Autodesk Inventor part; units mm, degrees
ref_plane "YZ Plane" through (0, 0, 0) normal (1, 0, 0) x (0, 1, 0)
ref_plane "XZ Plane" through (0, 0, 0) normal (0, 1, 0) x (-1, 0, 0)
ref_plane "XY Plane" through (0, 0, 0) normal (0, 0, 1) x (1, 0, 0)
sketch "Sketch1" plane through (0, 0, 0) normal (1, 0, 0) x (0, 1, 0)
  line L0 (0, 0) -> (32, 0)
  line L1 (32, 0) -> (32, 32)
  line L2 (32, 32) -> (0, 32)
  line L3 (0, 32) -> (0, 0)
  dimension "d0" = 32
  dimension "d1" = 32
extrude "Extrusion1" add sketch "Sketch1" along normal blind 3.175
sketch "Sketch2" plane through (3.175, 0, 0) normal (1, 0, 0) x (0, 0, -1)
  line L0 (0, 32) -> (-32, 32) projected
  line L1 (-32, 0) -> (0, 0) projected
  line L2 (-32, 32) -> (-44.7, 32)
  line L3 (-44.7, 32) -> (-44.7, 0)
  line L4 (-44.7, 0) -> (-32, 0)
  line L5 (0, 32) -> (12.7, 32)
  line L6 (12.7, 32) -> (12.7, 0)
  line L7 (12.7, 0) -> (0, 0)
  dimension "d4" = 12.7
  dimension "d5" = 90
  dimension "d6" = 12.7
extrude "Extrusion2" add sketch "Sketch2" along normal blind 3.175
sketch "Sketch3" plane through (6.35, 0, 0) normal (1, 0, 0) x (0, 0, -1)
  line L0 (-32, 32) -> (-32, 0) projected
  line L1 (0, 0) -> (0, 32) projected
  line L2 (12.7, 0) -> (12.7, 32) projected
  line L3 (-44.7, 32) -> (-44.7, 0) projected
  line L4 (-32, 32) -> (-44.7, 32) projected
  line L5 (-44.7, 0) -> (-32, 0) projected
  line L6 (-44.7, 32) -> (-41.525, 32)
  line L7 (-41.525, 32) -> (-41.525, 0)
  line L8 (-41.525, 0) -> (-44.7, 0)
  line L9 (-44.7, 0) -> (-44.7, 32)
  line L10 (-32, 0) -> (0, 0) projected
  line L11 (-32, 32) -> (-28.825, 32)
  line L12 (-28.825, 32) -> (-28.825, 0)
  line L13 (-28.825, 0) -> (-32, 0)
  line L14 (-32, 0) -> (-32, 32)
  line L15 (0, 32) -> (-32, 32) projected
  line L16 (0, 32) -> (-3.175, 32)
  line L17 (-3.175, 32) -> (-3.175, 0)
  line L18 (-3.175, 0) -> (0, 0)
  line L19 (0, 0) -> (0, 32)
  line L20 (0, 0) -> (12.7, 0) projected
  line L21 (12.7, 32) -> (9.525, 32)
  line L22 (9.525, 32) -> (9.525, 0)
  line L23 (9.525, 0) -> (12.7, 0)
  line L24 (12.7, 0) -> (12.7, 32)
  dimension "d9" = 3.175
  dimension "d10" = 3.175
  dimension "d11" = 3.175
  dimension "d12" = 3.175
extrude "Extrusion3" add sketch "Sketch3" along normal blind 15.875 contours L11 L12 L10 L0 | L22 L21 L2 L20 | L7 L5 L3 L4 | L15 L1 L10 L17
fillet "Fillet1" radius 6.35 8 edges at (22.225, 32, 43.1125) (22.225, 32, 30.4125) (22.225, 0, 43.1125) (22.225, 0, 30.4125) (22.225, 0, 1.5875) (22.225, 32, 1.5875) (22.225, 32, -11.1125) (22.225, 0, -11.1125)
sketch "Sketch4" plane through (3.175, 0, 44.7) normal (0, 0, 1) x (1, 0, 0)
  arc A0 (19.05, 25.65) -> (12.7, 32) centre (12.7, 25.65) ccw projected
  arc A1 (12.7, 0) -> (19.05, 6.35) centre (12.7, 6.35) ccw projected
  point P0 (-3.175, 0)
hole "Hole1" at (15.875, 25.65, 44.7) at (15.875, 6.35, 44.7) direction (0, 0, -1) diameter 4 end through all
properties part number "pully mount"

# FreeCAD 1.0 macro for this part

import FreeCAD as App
import Part
import Sketcher


def edges_at(feature, points):
    """Names of the edges that pass closest to the given points."""
    edges = feature.Shape.Edges
    near = lambda p: min(range(len(edges)), key=lambda i: edges[i].distToShape(Part.Vertex(*p))[0])
    return sorted({f"Edge{near(p) + 1}" for p in points})

doc = App.newDocument("Part")
body = doc.addObject("PartDesign::Body", "Body")

sketch1 = body.newObject("Sketcher::SketchObject", "Sketch")
sketch1.AttachmentSupport = (doc.getObject("YZ_Plane"), [""])
sketch1.MapMode = "FlatFace"
sketch1.addGeometry([
    Part.LineSegment(App.Vector(0, 32, 0), App.Vector(0, 0, 0)),
    Part.LineSegment(App.Vector(0, 0, 0), App.Vector(32, 0, 0)),
    Part.LineSegment(App.Vector(32, 0, 0), App.Vector(32, 32, 0)),
    Part.LineSegment(App.Vector(32, 32, 0), App.Vector(0, 32, 0)),
], False)
sketch1.addConstraint([
    Sketcher.Constraint("Coincident", 0, 2, 1, 1),
    Sketcher.Constraint("Coincident", 1, 2, 2, 1),
    Sketcher.Constraint("Coincident", 2, 2, 3, 1),
    Sketcher.Constraint("Coincident", 3, 2, 0, 1),
    Sketcher.Constraint("Vertical", 0),
    Sketcher.Constraint("Horizontal", 1),
    Sketcher.Constraint("Vertical", 2),
    Sketcher.Constraint("Horizontal", 3),
    Sketcher.Constraint("Coincident", 0, 2, -1, 1),
    Sketcher.Constraint("Equal", 3, 0),
    Sketcher.Constraint("DistanceX", 1, 1, 1, 2, 32.0),
])
pad1 = body.newObject("PartDesign::Pad", "Pad")
pad1.Profile = sketch1
pad1.Length = 3.175

sketch2 = body.newObject("Sketcher::SketchObject", "Sketch001")
sketch2.AttachmentSupport = (doc.getObject("YZ_Plane"), [""])
sketch2.MapMode = "FlatFace"
sketch2.AttachmentOffset = App.Placement(App.Vector(0, 0, 3.175), App.Rotation())
sketch2.addGeometry([
    Part.LineSegment(App.Vector(32, -13, 0), App.Vector(32, 45, 0)),
    Part.LineSegment(App.Vector(32, 45, 0), App.Vector(0, 45, 0)),
    Part.LineSegment(App.Vector(0, 45, 0), App.Vector(0, -13, 0)),
    Part.LineSegment(App.Vector(0, -13, 0), App.Vector(32, -13, 0)),
], False)
sketch2.addConstraint([
    Sketcher.Constraint("Coincident", 0, 2, 1, 1),
    Sketcher.Constraint("Coincident", 1, 2, 2, 1),
    Sketcher.Constraint("Coincident", 2, 2, 3, 1),
    Sketcher.Constraint("Coincident", 3, 2, 0, 1),
    Sketcher.Constraint("Vertical", 0),
    Sketcher.Constraint("Horizontal", 1),
    Sketcher.Constraint("Vertical", 2),
    Sketcher.Constraint("Horizontal", 3),
    Sketcher.Constraint("PointOnObject", 1, 2, -2),
    Sketcher.Constraint("DistanceY", 2, 2, -1, 1, 12.7),
    Sketcher.Constraint("DistanceX", 1, 2, 1, 1, 32.0),
    Sketcher.Constraint("DistanceY", 0, 1, 0, 2, 57.4),
])
pad2 = body.newObject("PartDesign::Pad", "Pad001")
pad2.Profile = sketch2
pad2.Length = 3.175

sketch3 = body.newObject("Sketcher::SketchObject", "Sketch002")
sketch3.AttachmentSupport = (doc.getObject("YZ_Plane"), [""])
sketch3.MapMode = "FlatFace"
sketch3.AttachmentOffset = App.Placement(App.Vector(0, 0, 6.35), App.Rotation())
sketch3.addGeometry([
    Part.LineSegment(App.Vector(32, 28.8, 0), App.Vector(32, 32, 0)),
    Part.LineSegment(App.Vector(32, 32, 0), App.Vector(0, 32, 0)),
    Part.LineSegment(App.Vector(0, 32, 0), App.Vector(0, 28.8, 0)),
    Part.LineSegment(App.Vector(0, 28.8, 0), App.Vector(32, 28.8, 0)),
    Part.LineSegment(App.Vector(32, -9.5, 0), App.Vector(0, -9.5, 0)),
    Part.LineSegment(App.Vector(0, -9.5, 0), App.Vector(0, -12.7, 0)),
    Part.LineSegment(App.Vector(0, -12.7, 0), App.Vector(32, -12.7, 0)),
    Part.LineSegment(App.Vector(32, -12.7, 0), App.Vector(32, -9.5, 0)),
    Part.LineSegment(App.Vector(0, 41.5, 0), App.Vector(32, 41.5, 0)),
    Part.LineSegment(App.Vector(32, 41.5, 0), App.Vector(32, 44.7, 0)),
    Part.LineSegment(App.Vector(32, 44.7, 0), App.Vector(0, 44.7, 0)),
    Part.LineSegment(App.Vector(0, 44.7, 0), App.Vector(0, 41.5, 0)),
    Part.LineSegment(App.Vector(32, 0, 0), App.Vector(32, 3.2, 0)),
    Part.LineSegment(App.Vector(32, 3.2, 0), App.Vector(0, 3.2, 0)),
    Part.LineSegment(App.Vector(0, 3.2, 0), App.Vector(0, 0, 0)),
    Part.LineSegment(App.Vector(0, 0, 0), App.Vector(32, 0, 0)),
], False)
sketch3.addConstraint([
    Sketcher.Constraint("Coincident", 0, 2, 1, 1),
    Sketcher.Constraint("Coincident", 1, 2, 2, 1),
    Sketcher.Constraint("Coincident", 2, 2, 3, 1),
    Sketcher.Constraint("Coincident", 3, 2, 0, 1),
    Sketcher.Constraint("Coincident", 4, 2, 5, 1),
    Sketcher.Constraint("Coincident", 5, 2, 6, 1),
    Sketcher.Constraint("Coincident", 6, 2, 7, 1),
    Sketcher.Constraint("Coincident", 7, 2, 4, 1),
    Sketcher.Constraint("Coincident", 8, 2, 9, 1),
    Sketcher.Constraint("Coincident", 9, 2, 10, 1),
    Sketcher.Constraint("Coincident", 10, 2, 11, 1),
    Sketcher.Constraint("Coincident", 11, 2, 8, 1),
    Sketcher.Constraint("Coincident", 12, 2, 13, 1),
    Sketcher.Constraint("Coincident", 13, 2, 14, 1),
    Sketcher.Constraint("Coincident", 14, 2, 15, 1),
    Sketcher.Constraint("Coincident", 15, 2, 12, 1),
    Sketcher.Constraint("Vertical", 0),
    Sketcher.Constraint("Horizontal", 1),
    Sketcher.Constraint("Vertical", 2),
    Sketcher.Constraint("Horizontal", 3),
    Sketcher.Constraint("Horizontal", 4),
    Sketcher.Constraint("Vertical", 5),
    Sketcher.Constraint("Horizontal", 6),
    Sketcher.Constraint("Vertical", 7),
    Sketcher.Constraint("Horizontal", 8),
    Sketcher.Constraint("Vertical", 9),
    Sketcher.Constraint("Horizontal", 10),
    Sketcher.Constraint("Vertical", 11),
    Sketcher.Constraint("Vertical", 12),
    Sketcher.Constraint("Horizontal", 13),
    Sketcher.Constraint("Vertical", 14),
    Sketcher.Constraint("Horizontal", 15),
    Sketcher.Constraint("Coincident", 14, 2, -1, 1),
    Sketcher.Constraint("PointOnObject", 1, 2, -2),
    Sketcher.Constraint("PointOnObject", 4, 2, -2),
    Sketcher.Constraint("PointOnObject", 10, 2, -2),
    Sketcher.Constraint("Vertical", 3, 2, 6, 2),
    Sketcher.Constraint("Vertical", 7, 2, 8, 2),
    Sketcher.Constraint("Vertical", 9, 2, 12, 2),
    Sketcher.Constraint("Equal", 2, 5),
    Sketcher.Constraint("Equal", 7, 9),
    Sketcher.Constraint("Equal", 11, 12),
    Sketcher.Constraint("DistanceX", 1, 2, 1, 1, 32.0),
    Sketcher.Constraint("DistanceY", 0, 1, 0, 2, 3.175),
    Sketcher.Constraint("DistanceY", -1, 1, 0, 2, 32.0),
    Sketcher.Constraint("DistanceY", 5, 2, -1, 1, 12.7),
    Sketcher.Constraint("DistanceY", -1, 1, 9, 2, 44.7),
])
pad3 = body.newObject("PartDesign::Pad", "Pad002")
pad3.Profile = sketch3
pad3.Length = 15.875
doc.recompute()

fillet = body.newObject("PartDesign::Fillet", "Fillet")
fillet.Base = (pad3, edges_at(pad3, [
    (22.225, 32, 43.112),
    (22.225, 32, 30.413),
    (22.225, 0, 43.112),
    (22.225, 0, 30.413),
    (22.225, 0, 1.587),
    (22.225, 32, 1.587),
    (22.225, 32, -11.113),
    (22.225, 0, -11.113),
]))
fillet.Radius = 6.35

sketch4 = body.newObject("Sketcher::SketchObject", "Sketch003")
sketch4.AttachmentSupport = (doc.getObject("XY_Plane"), [""])
sketch4.MapMode = "FlatFace"
sketch4.AttachmentOffset = App.Placement(App.Vector(0, 0, 44.7), App.Rotation())
sketch4.addGeometry([
    Part.Circle(App.Vector(15.9, 25.6, 0), App.Vector(0, 0, 1), 2),
    Part.Circle(App.Vector(15.9, 6.3, 0), App.Vector(0, 0, 1), 2),
], False)
sketch4.addConstraint([
    Sketcher.Constraint("Equal", 0, 1),
    Sketcher.Constraint("Vertical", 0, 3, 1, 3),
    Sketcher.Constraint("Diameter", 0, 4.0),
    Sketcher.Constraint("DistanceY", 1, 3, 0, 3, 19.3),
    Sketcher.Constraint("DistanceY", -1, 1, 0, 3, 25.65),
    Sketcher.Constraint("DistanceX", -1, 1, 0, 3, 15.875),
])
doc.recompute()
hole = body.newObject("PartDesign::Hole", "Hole")
hole.Profile = sketch4
hole.ThreadType = "None"
hole.Diameter = 4
hole.DepthType = "ThroughAll"

doc.recompute()
